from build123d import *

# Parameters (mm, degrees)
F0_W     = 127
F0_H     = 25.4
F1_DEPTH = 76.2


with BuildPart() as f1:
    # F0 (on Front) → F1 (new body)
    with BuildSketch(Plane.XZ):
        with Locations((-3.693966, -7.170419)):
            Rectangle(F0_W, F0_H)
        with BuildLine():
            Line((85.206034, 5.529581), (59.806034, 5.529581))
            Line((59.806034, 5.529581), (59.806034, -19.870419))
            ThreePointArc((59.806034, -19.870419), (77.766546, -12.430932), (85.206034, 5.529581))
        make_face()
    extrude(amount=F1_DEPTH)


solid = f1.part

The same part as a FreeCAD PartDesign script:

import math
import FreeCAD as App
import Part
import Sketcher

V = App.Vector
Q = App.Units.Quantity

doc = App.newDocument("Part")
body = doc.addObject("PartDesign::Body", "Body")

# Sketch on XZ plane
sketch1 = body.newObject("Sketcher::SketchObject", "Sketch")
sketch1.AttachmentSupport = (doc.getObject("XZ_Plane"), [""])
sketch1.MapMode = "FlatFace"
sketch1.addGeometry([
    Part.LineSegment(V(-67, 6, 0), V(-67, -20, 0)),
    Part.LineSegment(V(-67, -20, 0), V(60, -20, 0)),
    Part.ArcOfCircle(Part.Circle(V(60, 6, 0), V(0, 0, 1), 25), math.radians(-90), math.radians(0)),
    Part.LineSegment(V(85, 6, 0), V(-67, 6, 0)),
], False)
sketch1.addConstraint([
    Sketcher.Constraint("Coincident", 0, 2, 1, 1),
    Sketcher.Constraint("Tangent", 1, 2, 2, 1),
    Sketcher.Constraint("Coincident", 2, 2, 3, 1),
    Sketcher.Constraint("Coincident", 3, 2, 0, 1),
    Sketcher.Constraint("Vertical", 0),
    Sketcher.Constraint("Horizontal", 1),
    Sketcher.Constraint("Horizontal", 3),
    Sketcher.Constraint("Radius", 2, Q("1 in")),
    Sketcher.Constraint("DistanceX", 1, 1, 1, 2, Q("5 in")),
    Sketcher.Constraint("DistanceY", 0, 2, 0, 1, Q("1 in")),
    Sketcher.Constraint("DistanceY", -1, 1, 2, 3, Q("0.2177 in")),
    Sketcher.Constraint("DistanceX", -1, 1, 2, 3, 59.806035),
])
pad1 = body.newObject("PartDesign::Pad", "Pad")
pad1.Profile = sketch1
pad1.Length = Q("3 in")

doc.recompute()
